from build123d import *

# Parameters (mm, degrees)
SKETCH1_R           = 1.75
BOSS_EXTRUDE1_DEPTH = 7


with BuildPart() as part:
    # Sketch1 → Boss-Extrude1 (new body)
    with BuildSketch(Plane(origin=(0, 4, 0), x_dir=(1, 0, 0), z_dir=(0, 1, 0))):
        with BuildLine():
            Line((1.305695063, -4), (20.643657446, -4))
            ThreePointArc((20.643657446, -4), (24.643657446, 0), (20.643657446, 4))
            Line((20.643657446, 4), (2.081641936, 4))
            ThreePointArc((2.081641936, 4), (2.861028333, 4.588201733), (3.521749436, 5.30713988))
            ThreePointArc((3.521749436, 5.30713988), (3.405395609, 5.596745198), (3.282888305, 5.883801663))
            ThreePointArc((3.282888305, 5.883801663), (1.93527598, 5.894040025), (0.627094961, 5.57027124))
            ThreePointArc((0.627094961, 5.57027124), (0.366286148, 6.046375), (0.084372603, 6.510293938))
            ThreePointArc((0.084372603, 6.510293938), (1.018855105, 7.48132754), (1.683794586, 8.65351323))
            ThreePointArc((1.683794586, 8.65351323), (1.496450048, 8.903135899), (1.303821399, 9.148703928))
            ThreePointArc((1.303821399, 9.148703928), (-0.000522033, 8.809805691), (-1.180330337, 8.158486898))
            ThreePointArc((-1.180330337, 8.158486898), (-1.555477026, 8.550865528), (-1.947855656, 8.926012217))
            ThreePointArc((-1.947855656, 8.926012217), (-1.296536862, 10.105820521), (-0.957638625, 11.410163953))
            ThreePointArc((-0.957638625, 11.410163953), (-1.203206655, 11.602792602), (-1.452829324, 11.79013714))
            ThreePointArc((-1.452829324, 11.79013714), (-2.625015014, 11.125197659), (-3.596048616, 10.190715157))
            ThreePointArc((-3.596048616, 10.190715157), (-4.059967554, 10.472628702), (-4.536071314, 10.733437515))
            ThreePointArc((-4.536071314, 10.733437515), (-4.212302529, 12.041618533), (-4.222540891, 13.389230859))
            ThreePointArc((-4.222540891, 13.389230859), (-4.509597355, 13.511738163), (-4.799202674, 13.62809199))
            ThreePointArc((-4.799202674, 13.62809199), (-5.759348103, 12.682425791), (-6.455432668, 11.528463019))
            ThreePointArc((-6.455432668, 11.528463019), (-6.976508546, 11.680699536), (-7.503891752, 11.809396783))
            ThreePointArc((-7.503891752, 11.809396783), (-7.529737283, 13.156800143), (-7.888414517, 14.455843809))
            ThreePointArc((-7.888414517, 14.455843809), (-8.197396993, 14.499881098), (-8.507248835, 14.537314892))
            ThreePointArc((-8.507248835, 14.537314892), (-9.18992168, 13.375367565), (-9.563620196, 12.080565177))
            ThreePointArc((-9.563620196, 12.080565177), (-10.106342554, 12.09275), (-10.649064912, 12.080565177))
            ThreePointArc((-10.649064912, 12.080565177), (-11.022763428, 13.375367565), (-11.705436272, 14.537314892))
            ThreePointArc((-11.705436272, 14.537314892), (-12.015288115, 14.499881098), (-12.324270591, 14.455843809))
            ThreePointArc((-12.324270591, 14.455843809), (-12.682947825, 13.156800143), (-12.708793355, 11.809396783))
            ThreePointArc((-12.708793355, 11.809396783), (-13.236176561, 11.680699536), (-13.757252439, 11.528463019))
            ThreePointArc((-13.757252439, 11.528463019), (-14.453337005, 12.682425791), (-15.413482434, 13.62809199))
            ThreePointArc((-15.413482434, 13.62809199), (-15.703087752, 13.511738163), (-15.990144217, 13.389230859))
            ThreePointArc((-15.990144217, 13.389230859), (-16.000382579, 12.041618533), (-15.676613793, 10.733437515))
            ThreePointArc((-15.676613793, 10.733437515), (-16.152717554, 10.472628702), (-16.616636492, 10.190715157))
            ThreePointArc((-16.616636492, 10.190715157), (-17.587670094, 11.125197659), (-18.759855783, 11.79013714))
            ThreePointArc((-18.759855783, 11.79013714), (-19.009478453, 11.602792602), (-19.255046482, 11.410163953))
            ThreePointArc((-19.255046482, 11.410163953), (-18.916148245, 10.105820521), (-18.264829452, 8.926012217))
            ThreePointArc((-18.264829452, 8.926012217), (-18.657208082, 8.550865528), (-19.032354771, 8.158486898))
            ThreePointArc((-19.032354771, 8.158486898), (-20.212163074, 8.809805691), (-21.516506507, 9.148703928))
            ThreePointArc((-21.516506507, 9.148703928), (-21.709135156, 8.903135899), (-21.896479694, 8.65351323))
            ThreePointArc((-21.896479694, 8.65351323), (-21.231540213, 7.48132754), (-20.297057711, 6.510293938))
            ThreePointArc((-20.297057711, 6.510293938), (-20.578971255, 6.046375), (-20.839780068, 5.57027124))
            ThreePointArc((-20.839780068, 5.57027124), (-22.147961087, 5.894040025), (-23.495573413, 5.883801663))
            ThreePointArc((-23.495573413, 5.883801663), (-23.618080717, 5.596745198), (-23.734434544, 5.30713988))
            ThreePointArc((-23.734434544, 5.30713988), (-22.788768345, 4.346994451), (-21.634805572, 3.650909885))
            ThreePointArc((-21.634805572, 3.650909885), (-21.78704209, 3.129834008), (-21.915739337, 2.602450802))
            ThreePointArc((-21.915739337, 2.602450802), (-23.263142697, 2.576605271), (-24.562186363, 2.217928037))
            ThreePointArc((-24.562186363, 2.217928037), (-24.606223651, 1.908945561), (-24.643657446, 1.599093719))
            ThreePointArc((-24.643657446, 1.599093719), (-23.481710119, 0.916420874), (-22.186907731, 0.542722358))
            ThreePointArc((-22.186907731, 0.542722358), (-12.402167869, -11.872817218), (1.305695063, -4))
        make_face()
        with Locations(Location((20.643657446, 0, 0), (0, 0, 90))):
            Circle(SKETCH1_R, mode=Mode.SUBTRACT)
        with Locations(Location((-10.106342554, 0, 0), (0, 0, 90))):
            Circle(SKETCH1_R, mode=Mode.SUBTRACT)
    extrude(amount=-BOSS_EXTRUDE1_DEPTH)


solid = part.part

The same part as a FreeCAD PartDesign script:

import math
import FreeCAD as App
import Part
import Sketcher

V = App.Vector

doc = App.newDocument("Part")
body = doc.addObject("PartDesign::Body", "Body")

sketch1 = body.newObject("Sketcher::SketchObject", "Sketch")
sketch1.AttachmentSupport = (doc.getObject("XZ_Plane"), [""])
sketch1.MapMode = "FlatFace"
sketch1.AttachmentOffset = App.Placement(V(0, 0, -4), App.Rotation())
sketch1.addGeometry([
    Part.LineSegment(V(1.305695, 4, 0), V(20.643657, 4, 0)),
    Part.ArcOfCircle(Part.Circle(V(20.643657, 0, 0), V(0, 0, 1), 4), math.radians(-90), math.radians(90)),
    Part.LineSegment(V(20.643657, -4, 0), V(2.081642, -4, 0)),
    Part.ArcOfCircle(Part.Circle(V(-0.768289, -8.586708, 0), V(0, 0, 1), 5.4), math.radians(37.396512), math.radians(58.14543)),
    Part.ArcOfCircle(Part.Circle(V(-10.106343, 0, 0), V(0, 0, 1), 14.625), math.radians(-23.722744), math.radians(-21.277256)),
    Part.ArcOfCircle(Part.Circle(V(2.568378, -0.531281, 0), V(0, 0, 1), 5.4), math.radians(-111.069299), math.radians(-82.396512)),
    Part.ArcOfCircle(Part.Circle(V(-10.106343, 0, 0), V(0, 0, 1), 12.09275), math.radians(-32.572297), math.radians(-27.427703)),
    Part.ArcOfCircle(Part.Circle(V(-3.308879, -10.710989, 0), V(0, 0, 1), 5.4), math.radians(22.396512), math.radians(51.069299)),
    Part.ArcOfCircle(Part.Circle(V(-10.106342, 0, 0), V(0, 0, 1), 14.625), math.radians(-38.722744), math.radians(-36.277256)),
    Part.ArcOfCircle(Part.Circle(V(1.998992, -3.793637, 0), V(0, 0, 1), 5.4), math.radians(-126.069299), math.radians(-97.396512)),
    Part.ArcOfCircle(Part.Circle(V(-10.106343, 0, 0), V(0, 0, 1), 12.09275), math.radians(-47.572297), math.radians(-42.427703)),
    Part.ArcOfCircle(Part.Circle(V(-6.312705, -12.105334, 0), V(0, 0, 1), 5.4), math.radians(7.396512), math.radians(36.069299)),
    Part.ArcOfCircle(Part.Circle(V(-10.106343, 0.000001, 0), V(0, 0, 1), 14.625001), math.radians(-53.722744), math.radians(-51.277256)),
    Part.ArcOfCircle(Part.Circle(V(0.604647, -6.797463, 0), V(0, 0, 1), 5.4), math.radians(-141.069299), math.radians(-112.396512)),
    Part.ArcOfCircle(Part.Circle(V(-10.106343, 0, 0), V(0, 0, 1), 12.09275), math.radians(-62.572297), math.radians(-57.427703)),
    Part.ArcOfCircle(Part.Circle(V(-9.575061, -12.674721, 0), V(0, 0, 1), 5.4), math.radians(-7.603488), math.radians(21.069299)),
    Part.ArcOfCircle(Part.Circle(V(-10.106342, -0.000001, 0), V(0, 0, 1), 14.624999), math.radians(-68.722744), math.radians(-66.277256)),
    Part.ArcOfCircle(Part.Circle(V(-1.519634, -9.338053, 0), V(0, 0, 1), 5.4), math.radians(-156.069299), math.radians(-127.396512)),
    Part.ArcOfCircle(Part.Circle(V(-10.106343, 0, 0), V(0, 0, 1), 12.09275), math.radians(-77.572297), math.radians(-72.427703)),
    Part.ArcOfCircle(Part.Circle(V(-12.873623, -12.380346, 0), V(0, 0, 1), 5.4), math.radians(-22.603488), math.radians(6.069299)),
    Part.ArcOfCircle(Part.Circle(V(-10.106342, -0.000002, 0), V(0, 0, 1), 14.624998), math.radians(-83.722744), math.radians(-81.277256)),
    Part.ArcOfCircle(Part.Circle(V(-4.229085, -11.242271, 0), V(0, 0, 1), 5.4), math.radians(-171.069299), math.radians(-142.396512)),
    Part.ArcOfCircle(Part.Circle(V(-10.106343, 0, 0), V(0, 0, 1), 12.09275), math.radians(-92.572297), math.radians(-87.427703)),
    Part.ArcOfCircle(Part.Circle(V(-15.9836, -11.242271, 0), V(0, 0, 1), 5.4), math.radians(-37.603488), math.radians(-8.930701)),
    Part.ArcOfCircle(Part.Circle(V(-10.106343, -0.000002, 0), V(0, 0, 1), 14.624998), math.radians(-98.722744), math.radians(-96.277256)),
    Part.ArcOfCircle(Part.Circle(V(-7.339062, -12.380346, 0), V(0, 0, 1), 5.4), math.radians(173.930701), math.radians(202.603488)),
    Part.ArcOfCircle(Part.Circle(V(-10.106343, 0, 0), V(0, 0, 1), 12.09275), math.radians(-107.572297), math.radians(-102.427703)),
    Part.ArcOfCircle(Part.Circle(V(-18.693051, -9.338053, 0), V(0, 0, 1), 5.4), math.radians(-52.603488), math.radians(-23.930701)),
    Part.ArcOfCircle(Part.Circle(V(-10.106342, 0, 0), V(0, 0, 1), 14.625), math.radians(-113.722744), math.radians(-111.277256)),
    Part.ArcOfCircle(Part.Circle(V(-10.637624, -12.674721, 0), V(0, 0, 1), 5.4), math.radians(158.930701), math.radians(187.603488)),
    Part.ArcOfCircle(Part.Circle(V(-10.106343, 0, 0), V(0, 0, 1), 12.09275), math.radians(-122.572297), math.radians(-117.427703)),
    Part.ArcOfCircle(Part.Circle(V(-20.817332, -6.797463, 0), V(0, 0, 1), 5.4), math.radians(-67.603488), math.radians(-38.930701)),
    Part.ArcOfCircle(Part.Circle(V(-10.106344, -0.000001, 0), V(0, 0, 1), 14.624998), math.radians(-128.722744), math.radians(-126.277256)),
    Part.ArcOfCircle(Part.Circle(V(-13.89998, -12.105334, 0), V(0, 0, 1), 5.4), math.radians(143.930701), math.radians(172.603488)),
    Part.ArcOfCircle(Part.Circle(V(-10.106342, 0, 0), V(0, 0, 1), 12.09275), math.radians(-137.572297), math.radians(-132.427703)),
    Part.ArcOfCircle(Part.Circle(V(-22.211677, -3.793637, 0), V(0, 0, 1), 5.4), math.radians(-82.603488), math.radians(-53.930701)),
    Part.ArcOfCircle(Part.Circle(V(-10.106343, 0, 0), V(0, 0, 1), 14.625), math.radians(-143.722744), math.radians(-141.277256)),
    Part.ArcOfCircle(Part.Circle(V(-16.903806, -10.710989, 0), V(0, 0, 1), 5.4), math.radians(128.930701), math.radians(157.603488)),
    Part.ArcOfCircle(Part.Circle(V(-10.106342, 0, 0), V(0, 0, 1), 12.092751), math.radians(-152.572297), math.radians(-147.427703)),
    Part.ArcOfCircle(Part.Circle(V(-22.781063, -0.531281, 0), V(0, 0, 1), 5.4), math.radians(-97.603488), math.radians(-68.930701)),
    Part.ArcOfCircle(Part.Circle(V(-10.106342, 0, 0), V(0, 0, 1), 14.625), math.radians(-158.722744), math.radians(-156.277256)),
    Part.ArcOfCircle(Part.Circle(V(-19.444396, -8.586708, 0), V(0, 0, 1), 5.4), math.radians(113.930701), math.radians(142.603488)),
    Part.ArcOfCircle(Part.Circle(V(-10.106343, 0, 0), V(0, 0, 1), 12.092749), math.radians(-167.572297), math.radians(-162.427702)),
    Part.ArcOfCircle(Part.Circle(V(-22.486688, 2.767281, 0), V(0, 0, 1), 5.4), math.radians(-112.603488), math.radians(-83.930701)),
    Part.ArcOfCircle(Part.Circle(V(-10.10634, 0, 0), V(0, 0, 1), 14.625003), math.radians(-173.722744), math.radians(-171.277256)),
    Part.ArcOfCircle(Part.Circle(V(-21.348613, -5.877257, 0), V(0, 0, 1), 5.4), math.radians(98.930701), math.radians(127.603488)),
    Part.ArcOfCircle(Part.Circle(V(-10.106343, 0, 0), V(0, 0, 1), 12.09275), math.radians(19.315925), math.radians(182.572297)),
    Part.Circle(V(-10.106343, 0, 0), V(0, 0, 1), 1.75),
    Part.Circle(V(20.643657, 0, 0), V(0, 0, 1), 1.75),
], False)
sketch1.addConstraint([
    Sketcher.Constraint("Coincident", 0, 2, 1, 2),
    Sketcher.Constraint("Coincident", 1, 1, 2, 1),
    Sketcher.Constraint("Coincident", 2, 2, 3, 2),
    Sketcher.Constraint("Coincident", 3, 1, 4, 2),
    Sketcher.Constraint("Coincident", 4, 1, 5, 2),
    Sketcher.Constraint("Coincident", 5, 1, 6, 2),
    Sketcher.Constraint("Coincident", 6, 1, 7, 2),
    Sketcher.Constraint("Coincident", 7, 1, 8, 2),
    Sketcher.Constraint("Coincident", 8, 1, 9, 2),
    Sketcher.Constraint("Coincident", 9, 1, 10, 2),
    Sketcher.Constraint("Coincident", 10, 1, 11, 2),
    Sketcher.Constraint("Coincident", 11, 1, 12, 2),
    Sketcher.Constraint("Coincident", 12, 1, 13, 2),
    Sketcher.Constraint("Coincident", 13, 1, 14, 2),
    Sketcher.Constraint("Coincident", 14, 1, 15, 2),
    Sketcher.Constraint("Coincident", 15, 1, 16, 2),
    Sketcher.Constraint("Coincident", 16, 1, 17, 2),
    Sketcher.Constraint("Coincident", 17, 1, 18, 2),
    Sketcher.Constraint("Coincident", 18, 1, 19, 2),
    Sketcher.Constraint("Coincident", 19, 1, 20, 2),
    Sketcher.Constraint("Coincident", 20, 1, 21, 2),
    Sketcher.Constraint("Coincident", 21, 1, 22, 2),
    Sketcher.Constraint("Coincident", 22, 1, 23, 2),
    Sketcher.Constraint("Coincident", 23, 1, 24, 2),
    Sketcher.Constraint("Coincident", 24, 1, 25, 2),
    Sketcher.Constraint("Coincident", 25, 1, 26, 2),
    Sketcher.Constraint("Coincident", 26, 1, 27, 2),
    Sketcher.Constraint("Coincident", 27, 1, 28, 2),
    Sketcher.Constraint("Coincident", 28, 1, 29, 2),
    Sketcher.Constraint("Coincident", 29, 1, 30, 2),
    Sketcher.Constraint("Coincident", 30, 1, 31, 2),
    Sketcher.Constraint("Coincident", 31, 1, 32, 2),
    Sketcher.Constraint("Coincident", 32, 1, 33, 2),
    Sketcher.Constraint("Coincident", 33, 1, 34, 2),
    Sketcher.Constraint("Coincident", 34, 1, 35, 2),
    Sketcher.Constraint("Coincident", 35, 1, 36, 2),
    Sketcher.Constraint("Coincident", 36, 1, 37, 2),
    Sketcher.Constraint("Coincident", 37, 1, 38, 2),
    Sketcher.Constraint("Coincident", 38, 1, 39, 2),
    Sketcher.Constraint("Coincident", 39, 1, 40, 2),
    Sketcher.Constraint("Coincident", 40, 1, 41, 2),
    Sketcher.Constraint("Coincident", 41, 1, 42, 2),
    Sketcher.Constraint("Coincident", 42, 1, 43, 2),
    Sketcher.Constraint("Coincident", 43, 1, 44, 2),
    Sketcher.Constraint("Coincident", 44, 1, 45, 2),
    Sketcher.Constraint("Coincident", 45, 1, 46, 2),
    Sketcher.Constraint("Coincident", 46, 1, 0, 1),
    Sketcher.Constraint("Horizontal", 0),
    Sketcher.Constraint("Horizontal", 2),
    Sketcher.Constraint("Coincident", 6, 3, 4, 3),
    Sketcher.Constraint("Coincident", 8, 3, 4, 3),
    Sketcher.Constraint("Coincident", 10, 3, 4, 3),
    Sketcher.Constraint("Coincident", 12, 3, 4, 3),
    Sketcher.Constraint("Coincident", 14, 3, 4, 3),
    Sketcher.Constraint("Coincident", 16, 3, 4, 3),
    Sketcher.Constraint("Coincident", 18, 3, 4, 3),
    Sketcher.Constraint("Coincident", 20, 3, 4, 3),
    Sketcher.Constraint("Coincident", 22, 3, 4, 3),
    Sketcher.Constraint("Coincident", 24, 3, 4, 3),
    Sketcher.Constraint("Coincident", 26, 3, 4, 3),
    Sketcher.Constraint("Coincident", 28, 3, 4, 3),
    Sketcher.Constraint("Coincident", 30, 3, 4, 3),
    Sketcher.Constraint("Coincident", 32, 3, 4, 3),
    Sketcher.Constraint("Coincident", 34, 3, 4, 3),
    Sketcher.Constraint("Coincident", 36, 3, 4, 3),
    Sketcher.Constraint("Coincident", 38, 3, 4, 3),
    Sketcher.Constraint("Coincident", 40, 3, 4, 3),
    Sketcher.Constraint("Coincident", 42, 3, 4, 3),
    Sketcher.Constraint("Coincident", 44, 3, 4, 3),
    Sketcher.Constraint("Coincident", 46, 3, 4, 3),
    Sketcher.Constraint("Coincident", 47, 3, 4, 3),
    Sketcher.Constraint("Coincident", 48, 3, 1, 3),
    Sketcher.Constraint("PointOnObject", 1, 3, -1),
    Sketcher.Constraint("PointOnObject", 4, 3, -1),
    Sketcher.Constraint("Radius", 1, 4.0),
    Sketcher.Constraint("Diameter", 47, 3.5),
    Sketcher.Constraint("Diameter", 48, 3.5),
    Sketcher.Constraint("Radius", 3, 5.4),
    Sketcher.Constraint("Radius", 5, 5.4),
    Sketcher.Constraint("Radius", 7, 5.4),
    Sketcher.Constraint("Radius", 9, 5.4),
    Sketcher.Constraint("Radius", 11, 5.4),
    Sketcher.Constraint("Radius", 13, 5.4),
    Sketcher.Constraint("Radius", 15, 5.4),
    Sketcher.Constraint("Radius", 17, 5.4),
    Sketcher.Constraint("Radius", 19, 5.4),
    Sketcher.Constraint("Radius", 21, 5.4),
    Sketcher.Constraint("Radius", 23, 5.4),
    Sketcher.Constraint("Radius", 25, 5.4),
    Sketcher.Constraint("Radius", 27, 5.4),
    Sketcher.Constraint("Radius", 29, 5.4),
    Sketcher.Constraint("Radius", 31, 5.4),
    Sketcher.Constraint("Radius", 33, 5.4),
    Sketcher.Constraint("Radius", 35, 5.4),
    Sketcher.Constraint("Radius", 37, 5.4),
    Sketcher.Constraint("Radius", 39, 5.4),
    Sketcher.Constraint("Radius", 41, 5.4),
    Sketcher.Constraint("Radius", 43, 5.4),
    Sketcher.Constraint("Radius", 45, 5.4),
    Sketcher.Constraint("Radius", 4, 14.625),
    Sketcher.Constraint("Radius", 8, 14.625),
    Sketcher.Constraint("Radius", 12, 14.625001),
    Sketcher.Constraint("Radius", 16, 14.624999),
    Sketcher.Constraint("Radius", 20, 14.624998),
    Sketcher.Constraint("Radius", 24, 14.624998),
    Sketcher.Constraint("Radius", 28, 14.625),
    Sketcher.Constraint("Radius", 32, 14.624998),
    Sketcher.Constraint("Radius", 36, 14.625),
    Sketcher.Constraint("Radius", 40, 14.625),
    Sketcher.Constraint("Radius", 6, 12.09275),
    Sketcher.Constraint("Radius", 10, 12.09275),
    Sketcher.Constraint("Radius", 14, 12.09275),
    Sketcher.Constraint("Radius", 18, 12.09275),
    Sketcher.Constraint("Radius", 22, 12.09275),
    Sketcher.Constraint("Radius", 26, 12.09275),
    Sketcher.Constraint("Radius", 30, 12.09275),
    Sketcher.Constraint("Radius", 34, 12.09275),
    Sketcher.Constraint("Radius", 38, 12.092751),
    Sketcher.Constraint("Radius", 42, 12.092749),
    Sketcher.Constraint("Radius", 46, 12.09275),
    Sketcher.Constraint("Radius", 44, 14.625003),
    Sketcher.Constraint("DistanceX", 23, 3, -1, 1, 15.9836),
    Sketcher.Constraint("DistanceY", 4, 1, -1, 1, 5.883802),
    Sketcher.Constraint("DistanceY", 39, 1, -1, 1, 5.883802),
    Sketcher.Constraint("DistanceX", 0, 1, 0, 2, 19.337962),
    Sketcher.Constraint("DistanceX", 2, 2, 2, 1, 18.562016),
    Sketcher.Constraint("DistanceX", 3, 3, -1, 1, 0.768289),
    Sketcher.Constraint("DistanceY", 3, 3, -1, 1, 8.586708),
    Sketcher.Constraint("DistanceY", 5, 3, -1, 1, 0.531281),
    Sketcher.Constraint("DistanceX", 7, 3, -1, 1, 3.308879),
    Sketcher.Constraint("DistanceY", 7, 3, -1, 1, 10.710989),
    Sketcher.Constraint("DistanceX", -1, 1, 9, 3, 1.998992),
    Sketcher.Constraint("DistanceX", 15, 3, -1, 1, 9.575061),
    Sketcher.Constraint("DistanceY", 15, 3, -1, 1, 12.674721),
    Sketcher.Constraint("DistanceY", 21, 3, -1, 1, 11.242271),
    Sketcher.Constraint("DistanceY", 23, 3, -1, 1, 11.242271),
    Sketcher.Constraint("DistanceX", 25, 3, -1, 1, 7.339062),
    Sketcher.Constraint("DistanceX", 27, 3, -1, 1, 18.693051),
    Sketcher.Constraint("DistanceY", 29, 3, -1, 1, 12.674721),
    Sketcher.Constraint("DistanceX", 31, 3, -1, 1, 20.817332),
    Sketcher.Constraint("DistanceX", 33, 3, -1, 1, 13.89998),
    Sketcher.Constraint("DistanceY", 37, 3, -1, 1, 10.710989),
    Sketcher.Constraint("DistanceY", 39, 3, -1, 1, 0.531281),
    Sketcher.Constraint("DistanceY", 41, 3, -1, 1, 8.586708),
    Sketcher.Constraint("DistanceX", 43, 3, -1, 1, 22.486688),
    Sketcher.Constraint("DistanceY", -1, 1, 43, 3, 2.767281),
    Sketcher.Constraint("DistanceX", 44, 3, -1, 1, 10.10634),
    Sketcher.Constraint("DistanceX", -1, 1, 8, 1, 1.303821),
    Sketcher.Constraint("DistanceX", 11, 1, -1, 1, 0.957639),
    Sketcher.Constraint("DistanceX", 12, 1, -1, 1, 1.452829),
    Sketcher.Constraint("DistanceX", 13, 1, -1, 1, 3.596049),
    Sketcher.Constraint("DistanceY", 16, 1, -1, 1, 13.628092),
    Sketcher.Constraint("DistanceX", 18, 1, -1, 1, 7.503892),
    Sketcher.Constraint("DistanceX", 20, 1, -1, 1, 8.507249),
    Sketcher.Constraint("DistanceX", 24, 1, -1, 1, 12.324271),
    Sketcher.Constraint("DistanceY", 27, 1, -1, 1, 13.628092),
    Sketcher.Constraint("DistanceY", 28, 1, -1, 1, 13.389231),
    Sketcher.Constraint("DistanceX", 33, 1, -1, 1, 18.264829),
    Sketcher.Constraint("DistanceX", 36, 1, -1, 1, 21.89648),
    Sketcher.Constraint("DistanceY", 40, 1, -1, 1, 5.30714),
    Sketcher.Constraint("DistanceX", -1, 1, 1, 3, 20.643657),
    Sketcher.Constraint("DistanceX", 11, 3, -1, 1, 6.312705),
    Sketcher.Constraint("DistanceX", 17, 3, -1, 1, 1.519634),
    Sketcher.Constraint("DistanceX", 19, 3, -1, 1, 12.873623),
    Sketcher.Constraint("DistanceY", 31, 3, -1, 1, 6.797463),
    Sketcher.Constraint("DistanceX", 35, 3, -1, 1, 22.211677),
    Sketcher.Constraint("DistanceY", 35, 3, -1, 1, 3.793637),
    Sketcher.Constraint("DistanceX", 45, 3, -1, 1, 21.348613),
    Sketcher.Constraint("DistanceY", 45, 3, -1, 1, 5.877257),
])
pad1 = body.newObject("PartDesign::Pad", "Pad")
pad1.Profile = sketch1
pad1.Length = 7

doc.recompute()
